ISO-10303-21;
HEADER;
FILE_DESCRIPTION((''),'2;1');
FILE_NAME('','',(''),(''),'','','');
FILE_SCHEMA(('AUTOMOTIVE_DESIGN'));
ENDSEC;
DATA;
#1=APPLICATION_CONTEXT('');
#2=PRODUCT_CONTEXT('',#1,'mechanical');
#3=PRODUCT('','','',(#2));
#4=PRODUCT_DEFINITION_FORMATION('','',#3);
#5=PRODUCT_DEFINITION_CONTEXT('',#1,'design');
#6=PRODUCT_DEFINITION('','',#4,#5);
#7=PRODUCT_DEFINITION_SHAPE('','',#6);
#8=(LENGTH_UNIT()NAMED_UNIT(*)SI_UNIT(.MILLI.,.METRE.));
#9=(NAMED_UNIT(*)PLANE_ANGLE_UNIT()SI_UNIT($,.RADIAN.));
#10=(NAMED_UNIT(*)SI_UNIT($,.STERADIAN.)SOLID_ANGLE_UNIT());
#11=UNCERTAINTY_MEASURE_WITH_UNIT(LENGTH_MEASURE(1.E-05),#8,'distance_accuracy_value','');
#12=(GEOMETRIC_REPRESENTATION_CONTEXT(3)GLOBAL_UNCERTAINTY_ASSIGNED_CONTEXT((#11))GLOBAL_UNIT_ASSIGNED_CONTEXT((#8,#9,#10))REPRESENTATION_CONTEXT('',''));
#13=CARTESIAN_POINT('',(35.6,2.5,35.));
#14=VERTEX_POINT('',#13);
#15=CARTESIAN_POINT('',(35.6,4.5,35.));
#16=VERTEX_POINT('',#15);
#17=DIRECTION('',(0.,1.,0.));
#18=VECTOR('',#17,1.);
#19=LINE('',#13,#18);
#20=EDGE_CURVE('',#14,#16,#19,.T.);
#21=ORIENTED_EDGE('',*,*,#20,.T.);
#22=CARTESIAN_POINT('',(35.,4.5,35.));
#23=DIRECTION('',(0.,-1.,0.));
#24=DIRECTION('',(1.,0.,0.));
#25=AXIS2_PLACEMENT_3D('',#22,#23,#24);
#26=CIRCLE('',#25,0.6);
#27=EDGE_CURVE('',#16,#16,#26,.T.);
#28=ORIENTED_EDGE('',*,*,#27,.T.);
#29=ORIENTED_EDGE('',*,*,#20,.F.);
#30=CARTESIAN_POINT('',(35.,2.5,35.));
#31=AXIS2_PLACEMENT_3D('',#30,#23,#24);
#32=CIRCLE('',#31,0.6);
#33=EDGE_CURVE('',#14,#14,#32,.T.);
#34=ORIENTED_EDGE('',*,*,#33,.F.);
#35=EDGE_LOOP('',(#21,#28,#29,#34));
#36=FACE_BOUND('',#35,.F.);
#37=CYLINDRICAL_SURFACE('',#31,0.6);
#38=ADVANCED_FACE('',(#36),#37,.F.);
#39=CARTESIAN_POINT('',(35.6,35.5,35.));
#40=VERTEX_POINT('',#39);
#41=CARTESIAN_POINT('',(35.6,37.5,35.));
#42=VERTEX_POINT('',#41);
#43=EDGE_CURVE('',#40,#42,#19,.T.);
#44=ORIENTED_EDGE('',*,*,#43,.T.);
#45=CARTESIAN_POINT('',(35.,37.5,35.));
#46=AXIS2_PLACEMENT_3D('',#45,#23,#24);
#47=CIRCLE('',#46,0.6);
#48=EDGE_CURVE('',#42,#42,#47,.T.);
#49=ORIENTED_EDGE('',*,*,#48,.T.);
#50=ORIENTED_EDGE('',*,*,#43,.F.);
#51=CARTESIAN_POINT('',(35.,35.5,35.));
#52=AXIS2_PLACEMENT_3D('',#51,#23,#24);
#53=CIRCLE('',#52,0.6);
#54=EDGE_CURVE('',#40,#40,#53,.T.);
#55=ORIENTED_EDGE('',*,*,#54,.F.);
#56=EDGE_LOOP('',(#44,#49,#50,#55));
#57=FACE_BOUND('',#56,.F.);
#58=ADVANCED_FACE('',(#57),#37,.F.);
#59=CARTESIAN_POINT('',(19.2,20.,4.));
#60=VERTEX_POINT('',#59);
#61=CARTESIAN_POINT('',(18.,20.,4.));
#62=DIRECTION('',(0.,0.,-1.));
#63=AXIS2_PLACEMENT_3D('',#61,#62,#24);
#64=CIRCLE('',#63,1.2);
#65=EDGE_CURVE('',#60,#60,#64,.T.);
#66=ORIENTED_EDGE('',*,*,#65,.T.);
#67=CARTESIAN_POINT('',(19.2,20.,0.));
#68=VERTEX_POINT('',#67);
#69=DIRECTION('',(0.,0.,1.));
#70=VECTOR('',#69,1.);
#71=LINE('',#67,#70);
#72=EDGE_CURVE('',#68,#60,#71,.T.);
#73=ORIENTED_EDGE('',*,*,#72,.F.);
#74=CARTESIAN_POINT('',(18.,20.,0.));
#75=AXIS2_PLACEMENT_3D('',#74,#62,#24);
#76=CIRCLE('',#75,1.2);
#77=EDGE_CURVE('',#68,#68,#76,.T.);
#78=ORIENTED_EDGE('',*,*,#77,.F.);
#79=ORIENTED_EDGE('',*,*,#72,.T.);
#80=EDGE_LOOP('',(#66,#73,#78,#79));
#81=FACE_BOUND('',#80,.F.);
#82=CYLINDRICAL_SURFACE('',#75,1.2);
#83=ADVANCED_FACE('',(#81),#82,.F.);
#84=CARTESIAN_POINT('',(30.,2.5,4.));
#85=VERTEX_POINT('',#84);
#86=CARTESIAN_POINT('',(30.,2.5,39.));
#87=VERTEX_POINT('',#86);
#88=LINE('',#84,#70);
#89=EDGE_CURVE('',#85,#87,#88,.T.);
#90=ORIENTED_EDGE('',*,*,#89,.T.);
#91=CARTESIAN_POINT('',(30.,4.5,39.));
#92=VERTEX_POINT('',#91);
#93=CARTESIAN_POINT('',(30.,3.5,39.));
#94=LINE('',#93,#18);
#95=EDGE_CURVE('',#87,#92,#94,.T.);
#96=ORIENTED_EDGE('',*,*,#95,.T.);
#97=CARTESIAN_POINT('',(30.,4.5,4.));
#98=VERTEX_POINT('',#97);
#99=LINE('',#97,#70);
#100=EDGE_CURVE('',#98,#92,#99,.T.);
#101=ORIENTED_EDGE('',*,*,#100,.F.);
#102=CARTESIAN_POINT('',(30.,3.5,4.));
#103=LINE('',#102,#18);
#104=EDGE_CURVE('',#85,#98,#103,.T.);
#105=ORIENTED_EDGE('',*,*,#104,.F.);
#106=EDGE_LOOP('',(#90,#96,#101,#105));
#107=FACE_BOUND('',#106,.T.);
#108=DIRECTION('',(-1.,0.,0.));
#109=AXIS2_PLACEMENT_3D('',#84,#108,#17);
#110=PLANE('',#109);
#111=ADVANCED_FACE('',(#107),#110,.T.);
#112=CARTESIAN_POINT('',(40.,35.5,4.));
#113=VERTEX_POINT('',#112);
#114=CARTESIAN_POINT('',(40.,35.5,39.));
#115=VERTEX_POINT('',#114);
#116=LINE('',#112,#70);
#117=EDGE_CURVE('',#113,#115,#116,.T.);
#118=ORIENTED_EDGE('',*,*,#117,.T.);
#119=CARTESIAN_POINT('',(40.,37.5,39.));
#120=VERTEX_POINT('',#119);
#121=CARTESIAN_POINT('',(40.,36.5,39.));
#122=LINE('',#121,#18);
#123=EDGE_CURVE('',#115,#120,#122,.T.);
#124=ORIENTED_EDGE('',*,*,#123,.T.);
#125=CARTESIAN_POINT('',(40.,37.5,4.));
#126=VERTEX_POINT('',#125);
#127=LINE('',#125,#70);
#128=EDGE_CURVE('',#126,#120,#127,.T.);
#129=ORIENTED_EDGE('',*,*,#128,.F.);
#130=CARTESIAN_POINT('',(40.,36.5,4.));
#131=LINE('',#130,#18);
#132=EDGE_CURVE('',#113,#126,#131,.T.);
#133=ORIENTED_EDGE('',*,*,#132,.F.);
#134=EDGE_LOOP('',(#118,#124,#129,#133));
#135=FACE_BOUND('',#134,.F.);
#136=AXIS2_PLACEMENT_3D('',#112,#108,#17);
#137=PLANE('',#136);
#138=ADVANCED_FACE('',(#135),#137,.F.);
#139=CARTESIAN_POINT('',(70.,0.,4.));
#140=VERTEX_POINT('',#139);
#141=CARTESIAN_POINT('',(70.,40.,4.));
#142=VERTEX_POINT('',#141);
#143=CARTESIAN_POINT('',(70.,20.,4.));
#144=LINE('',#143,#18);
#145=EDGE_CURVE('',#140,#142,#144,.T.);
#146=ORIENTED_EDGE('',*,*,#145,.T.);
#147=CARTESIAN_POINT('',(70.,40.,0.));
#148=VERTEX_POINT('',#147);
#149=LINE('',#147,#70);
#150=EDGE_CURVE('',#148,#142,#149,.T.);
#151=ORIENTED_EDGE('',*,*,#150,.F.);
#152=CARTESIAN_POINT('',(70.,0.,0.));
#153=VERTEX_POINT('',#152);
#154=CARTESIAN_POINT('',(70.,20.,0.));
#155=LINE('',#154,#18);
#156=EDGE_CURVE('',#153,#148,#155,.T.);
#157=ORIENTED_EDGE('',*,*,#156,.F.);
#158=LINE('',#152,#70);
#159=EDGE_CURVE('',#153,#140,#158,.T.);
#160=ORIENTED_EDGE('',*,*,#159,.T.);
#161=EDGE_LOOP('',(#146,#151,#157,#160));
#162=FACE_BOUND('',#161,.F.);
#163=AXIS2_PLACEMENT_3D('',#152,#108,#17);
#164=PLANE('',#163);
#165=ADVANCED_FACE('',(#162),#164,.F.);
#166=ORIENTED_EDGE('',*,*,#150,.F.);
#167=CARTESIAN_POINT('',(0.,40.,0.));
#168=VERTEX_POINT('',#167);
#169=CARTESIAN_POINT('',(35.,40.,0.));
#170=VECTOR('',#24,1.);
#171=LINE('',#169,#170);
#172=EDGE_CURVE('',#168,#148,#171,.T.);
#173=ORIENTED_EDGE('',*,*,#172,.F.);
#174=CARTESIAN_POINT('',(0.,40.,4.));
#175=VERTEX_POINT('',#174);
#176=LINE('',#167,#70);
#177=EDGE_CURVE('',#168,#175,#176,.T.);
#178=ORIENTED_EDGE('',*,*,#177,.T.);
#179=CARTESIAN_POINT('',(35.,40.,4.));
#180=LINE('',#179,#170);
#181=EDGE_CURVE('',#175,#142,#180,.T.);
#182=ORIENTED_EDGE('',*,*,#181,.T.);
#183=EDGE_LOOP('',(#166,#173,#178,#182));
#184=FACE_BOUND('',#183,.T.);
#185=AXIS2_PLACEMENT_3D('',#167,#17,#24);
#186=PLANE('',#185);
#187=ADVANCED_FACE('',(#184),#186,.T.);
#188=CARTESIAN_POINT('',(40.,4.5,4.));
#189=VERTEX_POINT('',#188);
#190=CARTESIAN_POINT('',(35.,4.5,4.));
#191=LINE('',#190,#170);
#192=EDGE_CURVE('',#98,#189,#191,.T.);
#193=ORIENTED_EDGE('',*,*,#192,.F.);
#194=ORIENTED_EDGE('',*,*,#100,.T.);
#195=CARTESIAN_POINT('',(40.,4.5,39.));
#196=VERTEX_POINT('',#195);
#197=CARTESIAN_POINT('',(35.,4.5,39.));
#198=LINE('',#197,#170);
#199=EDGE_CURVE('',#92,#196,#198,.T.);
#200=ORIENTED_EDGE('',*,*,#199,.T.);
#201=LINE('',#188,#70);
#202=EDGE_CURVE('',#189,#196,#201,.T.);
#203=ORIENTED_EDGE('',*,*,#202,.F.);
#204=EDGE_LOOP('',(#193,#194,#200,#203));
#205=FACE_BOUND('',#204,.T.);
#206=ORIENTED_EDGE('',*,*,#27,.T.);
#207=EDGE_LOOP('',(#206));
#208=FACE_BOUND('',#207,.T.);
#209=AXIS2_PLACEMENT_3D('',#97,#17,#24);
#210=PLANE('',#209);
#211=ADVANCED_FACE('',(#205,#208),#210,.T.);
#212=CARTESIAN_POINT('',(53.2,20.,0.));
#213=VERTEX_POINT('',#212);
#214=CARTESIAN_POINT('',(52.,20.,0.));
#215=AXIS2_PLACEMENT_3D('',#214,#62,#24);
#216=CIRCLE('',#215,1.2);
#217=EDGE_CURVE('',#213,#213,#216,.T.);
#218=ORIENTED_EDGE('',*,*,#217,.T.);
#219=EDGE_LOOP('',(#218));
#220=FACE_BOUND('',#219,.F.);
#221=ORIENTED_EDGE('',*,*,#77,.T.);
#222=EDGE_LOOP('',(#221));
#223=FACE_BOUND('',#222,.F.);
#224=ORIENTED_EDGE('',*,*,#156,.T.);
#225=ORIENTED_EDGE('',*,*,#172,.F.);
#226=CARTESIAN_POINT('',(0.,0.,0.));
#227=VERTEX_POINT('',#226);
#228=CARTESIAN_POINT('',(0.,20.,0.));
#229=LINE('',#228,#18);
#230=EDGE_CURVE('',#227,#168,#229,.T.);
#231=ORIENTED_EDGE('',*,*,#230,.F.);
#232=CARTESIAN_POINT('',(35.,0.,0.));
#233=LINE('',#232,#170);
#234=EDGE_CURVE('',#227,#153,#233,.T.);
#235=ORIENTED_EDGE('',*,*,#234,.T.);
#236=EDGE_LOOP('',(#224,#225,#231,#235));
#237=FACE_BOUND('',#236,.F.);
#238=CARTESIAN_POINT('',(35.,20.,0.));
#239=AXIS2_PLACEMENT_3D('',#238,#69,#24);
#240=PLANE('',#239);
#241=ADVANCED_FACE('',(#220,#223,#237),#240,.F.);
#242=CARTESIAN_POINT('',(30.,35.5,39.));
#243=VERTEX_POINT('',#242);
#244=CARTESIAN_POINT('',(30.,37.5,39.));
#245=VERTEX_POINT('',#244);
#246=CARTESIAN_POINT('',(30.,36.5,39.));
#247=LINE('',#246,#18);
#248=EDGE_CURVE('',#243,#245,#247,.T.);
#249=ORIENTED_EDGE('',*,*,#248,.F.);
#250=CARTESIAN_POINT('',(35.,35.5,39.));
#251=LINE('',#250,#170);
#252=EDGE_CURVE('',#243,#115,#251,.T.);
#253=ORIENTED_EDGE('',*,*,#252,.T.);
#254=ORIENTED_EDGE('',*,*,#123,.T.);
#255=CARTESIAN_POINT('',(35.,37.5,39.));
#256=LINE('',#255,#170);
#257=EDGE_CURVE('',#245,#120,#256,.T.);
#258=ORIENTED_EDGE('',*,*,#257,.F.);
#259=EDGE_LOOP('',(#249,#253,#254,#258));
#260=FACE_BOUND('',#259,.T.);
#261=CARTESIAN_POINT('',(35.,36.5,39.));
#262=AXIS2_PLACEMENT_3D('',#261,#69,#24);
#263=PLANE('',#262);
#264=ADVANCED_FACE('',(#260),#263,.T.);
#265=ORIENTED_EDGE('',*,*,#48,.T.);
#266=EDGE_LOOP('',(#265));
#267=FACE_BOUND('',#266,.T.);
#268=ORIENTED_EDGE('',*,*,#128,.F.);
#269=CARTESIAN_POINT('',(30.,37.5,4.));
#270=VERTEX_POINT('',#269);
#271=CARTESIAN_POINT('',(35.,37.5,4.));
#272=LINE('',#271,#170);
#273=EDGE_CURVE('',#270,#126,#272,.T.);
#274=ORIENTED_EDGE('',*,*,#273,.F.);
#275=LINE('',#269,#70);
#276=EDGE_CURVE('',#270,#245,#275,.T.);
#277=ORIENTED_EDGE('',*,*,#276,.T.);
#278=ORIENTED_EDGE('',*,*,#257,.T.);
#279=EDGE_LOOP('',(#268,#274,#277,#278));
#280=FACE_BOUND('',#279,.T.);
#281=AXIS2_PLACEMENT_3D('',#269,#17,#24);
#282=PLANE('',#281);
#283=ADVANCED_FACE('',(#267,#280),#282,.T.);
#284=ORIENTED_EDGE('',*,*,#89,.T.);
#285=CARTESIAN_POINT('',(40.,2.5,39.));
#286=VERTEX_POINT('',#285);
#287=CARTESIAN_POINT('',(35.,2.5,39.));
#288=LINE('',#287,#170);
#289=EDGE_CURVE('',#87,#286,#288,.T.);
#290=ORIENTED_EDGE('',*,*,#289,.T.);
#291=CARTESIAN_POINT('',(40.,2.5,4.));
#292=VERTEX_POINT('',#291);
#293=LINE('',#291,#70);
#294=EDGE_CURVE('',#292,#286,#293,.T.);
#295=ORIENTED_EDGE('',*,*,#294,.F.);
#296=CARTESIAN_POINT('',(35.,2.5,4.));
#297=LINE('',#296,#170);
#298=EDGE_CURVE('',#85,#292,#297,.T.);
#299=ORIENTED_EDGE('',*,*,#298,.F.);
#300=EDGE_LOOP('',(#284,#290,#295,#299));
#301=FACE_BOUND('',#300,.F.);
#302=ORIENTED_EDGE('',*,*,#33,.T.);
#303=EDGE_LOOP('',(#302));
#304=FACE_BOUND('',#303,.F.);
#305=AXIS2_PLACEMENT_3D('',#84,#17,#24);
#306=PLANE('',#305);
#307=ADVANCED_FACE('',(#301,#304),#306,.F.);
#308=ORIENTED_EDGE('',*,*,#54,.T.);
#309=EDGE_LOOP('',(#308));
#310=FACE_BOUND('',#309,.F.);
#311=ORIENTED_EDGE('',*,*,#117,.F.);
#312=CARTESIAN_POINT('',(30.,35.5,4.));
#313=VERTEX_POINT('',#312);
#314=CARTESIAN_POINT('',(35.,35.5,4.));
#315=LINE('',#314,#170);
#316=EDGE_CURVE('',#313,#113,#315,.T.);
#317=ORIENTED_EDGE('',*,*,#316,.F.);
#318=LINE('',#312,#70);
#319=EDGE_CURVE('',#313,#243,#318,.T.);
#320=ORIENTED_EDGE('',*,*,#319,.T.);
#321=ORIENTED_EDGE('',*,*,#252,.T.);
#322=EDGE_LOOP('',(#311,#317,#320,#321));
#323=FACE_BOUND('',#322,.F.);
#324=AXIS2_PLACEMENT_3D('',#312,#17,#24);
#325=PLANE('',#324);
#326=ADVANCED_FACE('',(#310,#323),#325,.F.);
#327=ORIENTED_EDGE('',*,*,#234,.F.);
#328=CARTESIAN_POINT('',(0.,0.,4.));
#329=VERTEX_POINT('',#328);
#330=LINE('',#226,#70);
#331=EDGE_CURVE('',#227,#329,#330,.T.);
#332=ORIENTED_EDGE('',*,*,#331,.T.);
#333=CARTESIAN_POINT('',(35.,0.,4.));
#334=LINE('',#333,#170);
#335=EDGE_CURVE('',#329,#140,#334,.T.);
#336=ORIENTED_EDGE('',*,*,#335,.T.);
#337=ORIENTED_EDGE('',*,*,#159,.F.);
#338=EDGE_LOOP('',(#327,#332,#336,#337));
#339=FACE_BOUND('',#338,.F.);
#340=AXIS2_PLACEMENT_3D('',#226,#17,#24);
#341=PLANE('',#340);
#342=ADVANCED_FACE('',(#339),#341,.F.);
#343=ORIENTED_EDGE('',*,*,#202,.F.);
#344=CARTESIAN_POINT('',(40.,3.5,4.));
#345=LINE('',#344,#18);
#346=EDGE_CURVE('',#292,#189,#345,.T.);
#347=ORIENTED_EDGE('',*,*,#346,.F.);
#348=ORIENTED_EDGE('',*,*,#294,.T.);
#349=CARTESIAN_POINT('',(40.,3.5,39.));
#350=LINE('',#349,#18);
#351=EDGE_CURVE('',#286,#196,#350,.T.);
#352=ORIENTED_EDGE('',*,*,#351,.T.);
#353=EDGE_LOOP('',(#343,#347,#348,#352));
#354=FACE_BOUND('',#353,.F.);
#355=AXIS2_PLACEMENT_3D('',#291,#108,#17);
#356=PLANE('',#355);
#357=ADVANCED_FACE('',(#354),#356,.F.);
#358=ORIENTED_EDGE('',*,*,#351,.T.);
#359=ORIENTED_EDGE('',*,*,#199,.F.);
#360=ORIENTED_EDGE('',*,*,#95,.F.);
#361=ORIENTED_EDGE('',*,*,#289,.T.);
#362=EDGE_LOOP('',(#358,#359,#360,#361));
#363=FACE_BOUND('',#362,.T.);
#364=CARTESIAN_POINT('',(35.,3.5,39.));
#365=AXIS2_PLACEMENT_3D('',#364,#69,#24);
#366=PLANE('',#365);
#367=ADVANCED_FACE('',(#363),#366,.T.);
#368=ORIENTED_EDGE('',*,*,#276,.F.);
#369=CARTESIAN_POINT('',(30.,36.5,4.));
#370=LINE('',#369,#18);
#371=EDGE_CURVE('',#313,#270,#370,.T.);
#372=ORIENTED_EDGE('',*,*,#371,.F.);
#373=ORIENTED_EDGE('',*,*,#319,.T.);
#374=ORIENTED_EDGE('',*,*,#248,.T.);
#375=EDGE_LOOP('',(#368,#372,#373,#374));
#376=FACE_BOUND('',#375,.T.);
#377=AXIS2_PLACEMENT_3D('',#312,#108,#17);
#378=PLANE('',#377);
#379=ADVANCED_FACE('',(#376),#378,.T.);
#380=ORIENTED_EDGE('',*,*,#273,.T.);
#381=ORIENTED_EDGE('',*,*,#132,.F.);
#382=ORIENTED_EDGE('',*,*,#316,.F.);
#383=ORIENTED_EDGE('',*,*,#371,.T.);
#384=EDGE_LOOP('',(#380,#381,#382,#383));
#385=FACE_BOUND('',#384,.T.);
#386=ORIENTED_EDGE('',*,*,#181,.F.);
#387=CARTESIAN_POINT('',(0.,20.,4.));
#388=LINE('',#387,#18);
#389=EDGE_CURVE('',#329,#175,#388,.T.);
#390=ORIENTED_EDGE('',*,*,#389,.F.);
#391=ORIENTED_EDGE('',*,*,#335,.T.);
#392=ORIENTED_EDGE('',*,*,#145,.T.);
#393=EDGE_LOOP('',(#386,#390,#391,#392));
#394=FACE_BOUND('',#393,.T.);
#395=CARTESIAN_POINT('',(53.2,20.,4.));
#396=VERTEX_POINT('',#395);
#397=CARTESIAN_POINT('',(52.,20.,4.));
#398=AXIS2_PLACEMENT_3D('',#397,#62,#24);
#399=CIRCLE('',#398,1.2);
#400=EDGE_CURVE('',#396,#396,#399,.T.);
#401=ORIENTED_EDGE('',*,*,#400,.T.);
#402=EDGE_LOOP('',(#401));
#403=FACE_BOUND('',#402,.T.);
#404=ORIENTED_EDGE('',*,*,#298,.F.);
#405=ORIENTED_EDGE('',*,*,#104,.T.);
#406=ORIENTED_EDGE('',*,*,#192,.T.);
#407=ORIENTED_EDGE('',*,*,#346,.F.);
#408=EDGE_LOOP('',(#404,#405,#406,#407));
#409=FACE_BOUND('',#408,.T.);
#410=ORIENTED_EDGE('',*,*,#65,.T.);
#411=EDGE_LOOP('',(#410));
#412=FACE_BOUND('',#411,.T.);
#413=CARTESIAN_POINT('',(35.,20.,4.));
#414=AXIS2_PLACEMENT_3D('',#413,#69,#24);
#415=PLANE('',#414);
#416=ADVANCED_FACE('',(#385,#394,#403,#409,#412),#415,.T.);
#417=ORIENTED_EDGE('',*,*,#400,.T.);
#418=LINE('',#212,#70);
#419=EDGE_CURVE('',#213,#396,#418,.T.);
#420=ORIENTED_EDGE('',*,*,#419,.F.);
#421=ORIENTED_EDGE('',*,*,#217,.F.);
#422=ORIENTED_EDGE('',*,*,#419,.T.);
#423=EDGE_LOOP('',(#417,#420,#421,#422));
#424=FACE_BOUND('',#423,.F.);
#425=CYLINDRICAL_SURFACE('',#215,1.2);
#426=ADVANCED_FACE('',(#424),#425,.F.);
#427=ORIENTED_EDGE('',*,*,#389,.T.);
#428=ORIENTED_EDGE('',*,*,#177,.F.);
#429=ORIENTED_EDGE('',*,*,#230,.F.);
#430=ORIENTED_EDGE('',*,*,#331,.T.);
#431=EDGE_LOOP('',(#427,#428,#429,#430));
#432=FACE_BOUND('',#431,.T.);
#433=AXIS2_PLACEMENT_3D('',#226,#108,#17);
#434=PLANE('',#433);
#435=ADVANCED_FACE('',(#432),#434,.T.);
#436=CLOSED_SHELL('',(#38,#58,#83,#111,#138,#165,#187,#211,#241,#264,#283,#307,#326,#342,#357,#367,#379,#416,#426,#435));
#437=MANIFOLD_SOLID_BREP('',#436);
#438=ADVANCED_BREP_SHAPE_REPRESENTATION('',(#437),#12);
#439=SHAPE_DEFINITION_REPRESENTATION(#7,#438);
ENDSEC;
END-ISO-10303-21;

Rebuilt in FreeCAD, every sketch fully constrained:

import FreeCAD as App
import Part
import Sketcher

V = App.Vector
Q = App.Units.Quantity

doc = App.newDocument("Part")
body = doc.addObject("PartDesign::Body", "Body")

sketch1 = doc.addObject("Sketcher::SketchObject", "Sketch")
body.addObject(sketch1)
sketch1.AttachmentSupport = (doc.XY_Plane, [""])
sketch1.MapMode = "FlatFace"
sketch1.addGeometry(Part.LineSegment(V(0, 40, 0), V(0, 0, 0)), False)
sketch1.addGeometry(Part.LineSegment(V(0, 0, 0), V(70, 0, 0)), False)
sketch1.addGeometry(Part.LineSegment(V(70, 0, 0), V(70, 40, 0)), False)
sketch1.addGeometry(Part.LineSegment(V(70, 40, 0), V(0, 40, 0)), False)
sketch1.addConstraint(Sketcher.Constraint("Coincident", 0, 2, 1, 1))
sketch1.addConstraint(Sketcher.Constraint("Coincident", 1, 2, 2, 1))
sketch1.addConstraint(Sketcher.Constraint("Coincident", 2, 2, 3, 1))
sketch1.addConstraint(Sketcher.Constraint("Coincident", 3, 2, 0, 1))
sketch1.addConstraint(Sketcher.Constraint("Vertical", 0))
sketch1.addConstraint(Sketcher.Constraint("Horizontal", 1))
sketch1.addConstraint(Sketcher.Constraint("Vertical", 2))
sketch1.addConstraint(Sketcher.Constraint("Horizontal", 3))
sketch1.addConstraint(Sketcher.Constraint("Coincident", 0, 2, -1, 1))
sketch1.addConstraint(Sketcher.Constraint("DistanceX", 1, 1, 1, 2, Q("70 mm")))
sketch1.addConstraint(Sketcher.Constraint("DistanceY", 0, 2, 0, 1, Q("40 mm")))
pad1 = doc.addObject("PartDesign::Pad", "Pad")
body.addObject(pad1)
pad1.Profile = sketch1
pad1.Length = 4

sketch2 = doc.addObject("Sketcher::SketchObject", "Sketch001")
body.addObject(sketch2)
sketch2.AttachmentSupport = (doc.XY_Plane, [""])
sketch2.MapMode = "FlatFace"
sketch2.AttachmentOffset = App.Placement(V(0, 0, 4), App.Rotation())
sketch2.addGeometry(Part.LineSegment(V(30, 37.5, 0), V(30, 35.5, 0)), False)
sketch2.addGeometry(Part.LineSegment(V(30, 35.5, 0), V(40, 35.5, 0)), False)
sketch2.addGeometry(Part.LineSegment(V(40, 35.5, 0), V(40, 37.5, 0)), False)
sketch2.addGeometry(Part.LineSegment(V(40, 37.5, 0), V(30, 37.5, 0)), False)
sketch2.addGeometry(Part.LineSegment(V(30, 4.5, 0), V(30, 2.5, 0)), False)
sketch2.addGeometry(Part.LineSegment(V(30, 2.5, 0), V(40, 2.5, 0)), False)
sketch2.addGeometry(Part.LineSegment(V(40, 2.5, 0), V(40, 4.5, 0)), False)
sketch2.addGeometry(Part.LineSegment(V(40, 4.5, 0), V(30, 4.5, 0)), False)
sketch2.addConstraint(Sketcher.Constraint("Coincident", 0, 2, 1, 1))
sketch2.addConstraint(Sketcher.Constraint("Coincident", 1, 2, 2, 1))
sketch2.addConstraint(Sketcher.Constraint("Coincident", 2, 2, 3, 1))
sketch2.addConstraint(Sketcher.Constraint("Coincident", 3, 2, 0, 1))
sketch2.addConstraint(Sketcher.Constraint("Coincident", 4, 2, 5, 1))
sketch2.addConstraint(Sketcher.Constraint("Coincident", 5, 2, 6, 1))
sketch2.addConstraint(Sketcher.Constraint("Coincident", 6, 2, 7, 1))
sketch2.addConstraint(Sketcher.Constraint("Coincident", 7, 2, 4, 1))
sketch2.addConstraint(Sketcher.Constraint("Vertical", 0))
sketch2.addConstraint(Sketcher.Constraint("Horizontal", 1))
sketch2.addConstraint(Sketcher.Constraint("Vertical", 2))
sketch2.addConstraint(Sketcher.Constraint("Horizontal", 3))
sketch2.addConstraint(Sketcher.Constraint("Vertical", 4))
sketch2.addConstraint(Sketcher.Constraint("Horizontal", 5))
sketch2.addConstraint(Sketcher.Constraint("Vertical", 6))
sketch2.addConstraint(Sketcher.Constraint("Horizontal", 7))
sketch2.addConstraint(Sketcher.Constraint("Vertical", 3, 2, 4, 2))
sketch2.addConstraint(Sketcher.Constraint("Vertical", 2, 2, 5, 2))
sketch2.addConstraint(Sketcher.Constraint("Equal", 2, 4))
sketch2.addConstraint(Sketcher.Constraint("DistanceX", 1, 1, 1, 2, Q("10 mm")))
sketch2.addConstraint(Sketcher.Constraint("DistanceY", 0, 2, 0, 1, Q("2 mm")))
sketch2.addConstraint(Sketcher.Constraint("DistanceX", -1, 1, 0, 2, Q("30 mm")))
sketch2.addConstraint(Sketcher.Constraint("DistanceY", 4, 2, 0, 2, Q("33 mm")))
sketch2.addConstraint(Sketcher.Constraint("DistanceY", -1, 1, 0, 2, Q("35.5 mm")))
pad2 = doc.addObject("PartDesign::Pad", "Pad001")
body.addObject(pad2)
pad2.Profile = sketch2
pad2.Length = 35

sketch3 = doc.addObject("Sketcher::SketchObject", "Sketch002")
body.addObject(sketch3)
sketch3.AttachmentSupport = (doc.XZ_Plane, [""])
sketch3.MapMode = "FlatFace"
sketch3.AttachmentOffset = App.Placement(V(0, 0, -2.5), App.Rotation())
sketch3.addGeometry(Part.Circle(V(35, 35, 0), V(0, 0, 1), 0.6), False)
sketch3.addConstraint(Sketcher.Constraint("Diameter", 0, Q("1.2 mm")))
sketch3.addConstraint(Sketcher.Constraint("DistanceX", -1, 1, 0, 3, Q("35 mm")))
sketch3.addConstraint(Sketcher.Constraint("DistanceY", -1, 1, 0, 3, Q("35 mm")))
pocket1 = doc.addObject("PartDesign::Pocket", "Pocket")
body.addObject(pocket1)
pocket1.Profile = sketch3
pocket1.Length = 37

sketch4 = doc.addObject("Sketcher::SketchObject", "Sketch003")
body.addObject(sketch4)
sketch4.AttachmentSupport = (doc.XY_Plane, [""])
sketch4.MapMode = "FlatFace"
sketch4.addGeometry(Part.Circle(V(18, 20, 0), V(0, 0, 1), 1.2), False)
sketch4.addGeometry(Part.Circle(V(52, 20, 0), V(0, 0, 1), 1.2), False)
sketch4.addConstraint(Sketcher.Constraint("Equal", 0, 1))
sketch4.addConstraint(Sketcher.Constraint("Horizontal", 0, 3, 1, 3))
sketch4.addConstraint(Sketcher.Constraint("Diameter", 0, Q("2.4 mm")))
sketch4.addConstraint(Sketcher.Constraint("DistanceX", -1, 1, 0, 3, Q("18 mm")))
sketch4.addConstraint(Sketcher.Constraint("DistanceY", -1, 1, 0, 3, Q("20 mm")))
sketch4.addConstraint(Sketcher.Constraint("DistanceX", -1, 1, 1, 3, Q("52 mm")))
pocket2 = doc.addObject("PartDesign::Pocket", "Pocket001")
body.addObject(pocket2)
pocket2.Profile = sketch4
pocket2.Length = 5
pocket2.Reversed = True

doc.recompute()
